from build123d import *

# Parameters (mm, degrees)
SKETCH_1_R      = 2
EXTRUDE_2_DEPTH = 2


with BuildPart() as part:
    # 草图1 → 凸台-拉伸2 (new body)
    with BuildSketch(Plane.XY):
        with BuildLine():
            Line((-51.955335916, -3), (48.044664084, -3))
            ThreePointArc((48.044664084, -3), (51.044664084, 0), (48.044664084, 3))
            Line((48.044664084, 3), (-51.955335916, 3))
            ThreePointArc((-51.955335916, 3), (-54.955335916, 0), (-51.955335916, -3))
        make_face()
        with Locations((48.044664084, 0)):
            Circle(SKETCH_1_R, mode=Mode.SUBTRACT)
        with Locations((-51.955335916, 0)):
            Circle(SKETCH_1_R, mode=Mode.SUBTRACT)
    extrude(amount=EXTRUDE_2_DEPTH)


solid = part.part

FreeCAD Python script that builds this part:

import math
import FreeCAD as App
import Part
import Sketcher
from FreeCAD import Vector
Q = App.Units.Quantity

doc = App.newDocument("Part")
body = doc.addObject("PartDesign::Body", "Body")

# Sketch on XY plane
sketch1 = body.newObject("Sketcher::SketchObject", "Sketch")
sketch1.AttachmentSupport = (doc.getObject("XY_Plane"), [""])
sketch1.MapMode = "FlatFace"
sketch1.addGeometry([
    Part.LineSegment(Vector(-52, -3, 0), Vector(48, -3, 0)),  # 0
    Part.ArcOfCircle(Part.Circle(Vector(48, 0, 0), Vector(0, 0, 1), 3), math.radians(-90), math.radians(90)),  # 1
    Part.LineSegment(Vector(48, 3, 0), Vector(-52, 3, 0)),  # 2
    Part.ArcOfCircle(Part.Circle(Vector(-52, 0, 0), Vector(0, 0, 1), 3), math.radians(90), math.radians(270)),  # 3
    Part.Circle(Vector(-52, 0, 0), Vector(0, 0, 1), 2),  # 4
    Part.Circle(Vector(48, 0, 0), Vector(0, 0, 1), 2),  # 5
], False)
sketch1.addConstraint([
    Sketcher.Constraint("Tangent", 0, 2, 1, 1),
    Sketcher.Constraint("Tangent", 1, 2, 2, 1),
    Sketcher.Constraint("Tangent", 2, 2, 3, 1),
    Sketcher.Constraint("Tangent", 3, 2, 0, 1),
    Sketcher.Constraint("Horizontal", 0),
    Sketcher.Constraint("Horizontal", 2),
    Sketcher.Constraint("Coincident", 4, 3, 3, 3),
    Sketcher.Constraint("Coincident", 5, 3, 1, 3),
    Sketcher.Constraint("Equal", 4, 5),
    Sketcher.Constraint("PointOnObject", 1, 3, -1),
    Sketcher.Constraint("Diameter", 4, Q("4 mm")),
    Sketcher.Constraint("Radius", 1, Q("3 mm")),
    Sketcher.Constraint("DistanceX", 0, 1, 0, 2, Q("100 mm")),
    Sketcher.Constraint("DistanceX", -1, 1, 1, 3, Q("48.044664 mm")),
])
pad1 = body.newObject("PartDesign::Pad", "Pad")
pad1.Profile = sketch1
pad1.Length = 2

doc.recompute()
